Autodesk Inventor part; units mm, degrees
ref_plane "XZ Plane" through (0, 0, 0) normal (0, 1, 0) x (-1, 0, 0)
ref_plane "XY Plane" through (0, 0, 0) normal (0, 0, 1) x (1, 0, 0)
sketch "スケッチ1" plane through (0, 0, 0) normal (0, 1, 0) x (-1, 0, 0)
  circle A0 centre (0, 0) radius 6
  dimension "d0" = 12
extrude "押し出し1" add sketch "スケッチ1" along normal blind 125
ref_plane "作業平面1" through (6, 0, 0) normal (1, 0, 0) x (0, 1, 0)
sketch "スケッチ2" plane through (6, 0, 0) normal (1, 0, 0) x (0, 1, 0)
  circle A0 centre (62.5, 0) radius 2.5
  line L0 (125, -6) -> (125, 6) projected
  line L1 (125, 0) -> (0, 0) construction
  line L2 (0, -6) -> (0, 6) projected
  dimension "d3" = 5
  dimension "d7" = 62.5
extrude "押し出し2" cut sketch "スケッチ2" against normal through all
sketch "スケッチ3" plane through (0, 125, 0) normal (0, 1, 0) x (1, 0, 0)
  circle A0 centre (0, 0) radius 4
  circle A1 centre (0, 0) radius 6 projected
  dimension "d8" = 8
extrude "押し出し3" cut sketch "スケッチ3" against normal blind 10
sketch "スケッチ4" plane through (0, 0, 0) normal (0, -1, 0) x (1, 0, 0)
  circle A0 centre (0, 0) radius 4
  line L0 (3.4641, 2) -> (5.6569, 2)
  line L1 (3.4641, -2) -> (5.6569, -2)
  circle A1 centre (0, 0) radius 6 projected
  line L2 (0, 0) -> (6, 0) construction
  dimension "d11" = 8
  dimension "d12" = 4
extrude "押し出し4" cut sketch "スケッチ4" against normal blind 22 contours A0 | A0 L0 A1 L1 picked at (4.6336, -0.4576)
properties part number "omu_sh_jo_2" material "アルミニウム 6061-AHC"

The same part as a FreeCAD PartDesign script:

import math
import FreeCAD as App
import Part
import Sketcher
from FreeCAD import Vector

doc = App.newDocument("Part")
body = doc.addObject("PartDesign::Body", "Body")

# Sketch on XZ plane
sketch1 = body.newObject("Sketcher::SketchObject", "Sketch")
sketch1.AttachmentSupport = (doc.getObject("XZ_Plane"), [""])
sketch1.MapMode = "FlatFace"
sketch1.addGeometry(Part.Circle(Vector(0, 0, 0), Vector(0, 0, 1), 6), False)
sketch1.addConstraint([
    Sketcher.Constraint("Coincident", 0, 3, -1, 1),
    Sketcher.Constraint("Diameter", 0, 12.0),
])
pad1 = body.newObject("PartDesign::Pad", "Pad")
pad1.Profile = sketch1
pad1.Length = 125
pad1.Reversed = True

# Sketch on YZ plane
sketch2 = body.newObject("Sketcher::SketchObject", "Sketch001")
sketch2.AttachmentSupport = (doc.getObject("YZ_Plane"), [""])
sketch2.MapMode = "FlatFace"
sketch2.AttachmentOffset = App.Placement(Vector(0, 0, 6), App.Rotation())
sketch2.addGeometry(Part.Circle(Vector(62.5, 0, 0), Vector(0, 0, 1), 2.5), False)
sketch2.addConstraint([
    Sketcher.Constraint("PointOnObject", 0, 3, -1),
    Sketcher.Constraint("Diameter", 0, 5.0),
    Sketcher.Constraint("DistanceX", -1, 1, 0, 3, 62.5),
])
pocket1 = body.newObject("PartDesign::Pocket", "Pocket")
pocket1.Profile = sketch2
pocket1.Type = "ThroughAll"

# Sketch on XZ plane
sketch3 = body.newObject("Sketcher::SketchObject", "Sketch002")
sketch3.AttachmentSupport = (doc.getObject("XZ_Plane"), [""])
sketch3.MapMode = "FlatFace"
sketch3.AttachmentOffset = App.Placement(Vector(0, 0, -125), App.Rotation())
sketch3.addGeometry([
    Part.Circle(Vector(0, 0, 0), Vector(0, 0, 1), 6),
    Part.Circle(Vector(0, 0, 0), Vector(0, 0, 1), 4),
], False)
sketch3.addConstraint([
    Sketcher.Constraint("Coincident", 0, 3, -1, 1),
    Sketcher.Constraint("Coincident", 1, 3, -1, 1),
    Sketcher.Constraint("Diameter", 1, 8.0),
    Sketcher.Constraint("Diameter", 0, 12.0),
])
pocket2 = body.newObject("PartDesign::Pocket", "Pocket001")
pocket2.Profile = sketch3
pocket2.Length = 10
pocket2.Reversed = True

# Sketch on XZ plane
sketch4 = body.newObject("Sketcher::SketchObject", "Sketch003")
sketch4.AttachmentSupport = (doc.getObject("XZ_Plane"), [""])
sketch4.MapMode = "FlatFace"
sketch4.addGeometry([
    Part.ArcOfCircle(Part.Circle(Vector(0, 0, 0), Vector(0, 0, 1), 4), math.radians(30.000012), math.radians(329.999988)),
    Part.LineSegment(Vector(3.4641, -2, 0), Vector(5.6569, -2, 0)),
    Part.ArcOfCircle(Part.Circle(Vector(0, 0, 0), Vector(0, 0, 1), 6), math.radians(-19.471075), math.radians(19.471075)),
    Part.LineSegment(Vector(5.6569, 2, 0), Vector(3.4641, 2, 0)),
], False)
sketch4.addConstraint([
    Sketcher.Constraint("Coincident", 0, 2, 1, 1),
    Sketcher.Constraint("Coincident", 1, 2, 2, 1),
    Sketcher.Constraint("Coincident", 2, 2, 3, 1),
    Sketcher.Constraint("Coincident", 3, 2, 0, 1),
    Sketcher.Constraint("Horizontal", 1),
    Sketcher.Constraint("Horizontal", 3),
    Sketcher.Constraint("Coincident", 0, 3, -1, 1),
    Sketcher.Constraint("Coincident", 2, 3, -1, 1),
    Sketcher.Constraint("Vertical", 1, 2, 2, 2),
    Sketcher.Constraint("Radius", 0, 4.0),
    Sketcher.Constraint("Radius", 2, 6.0),
    Sketcher.Constraint("DistanceY", 1, 2, 2, 2, 4.0),
])
pocket3 = body.newObject("PartDesign::Pocket", "Pocket002")
pocket3.Profile = sketch4
pocket3.Length = 22

doc.recompute()
